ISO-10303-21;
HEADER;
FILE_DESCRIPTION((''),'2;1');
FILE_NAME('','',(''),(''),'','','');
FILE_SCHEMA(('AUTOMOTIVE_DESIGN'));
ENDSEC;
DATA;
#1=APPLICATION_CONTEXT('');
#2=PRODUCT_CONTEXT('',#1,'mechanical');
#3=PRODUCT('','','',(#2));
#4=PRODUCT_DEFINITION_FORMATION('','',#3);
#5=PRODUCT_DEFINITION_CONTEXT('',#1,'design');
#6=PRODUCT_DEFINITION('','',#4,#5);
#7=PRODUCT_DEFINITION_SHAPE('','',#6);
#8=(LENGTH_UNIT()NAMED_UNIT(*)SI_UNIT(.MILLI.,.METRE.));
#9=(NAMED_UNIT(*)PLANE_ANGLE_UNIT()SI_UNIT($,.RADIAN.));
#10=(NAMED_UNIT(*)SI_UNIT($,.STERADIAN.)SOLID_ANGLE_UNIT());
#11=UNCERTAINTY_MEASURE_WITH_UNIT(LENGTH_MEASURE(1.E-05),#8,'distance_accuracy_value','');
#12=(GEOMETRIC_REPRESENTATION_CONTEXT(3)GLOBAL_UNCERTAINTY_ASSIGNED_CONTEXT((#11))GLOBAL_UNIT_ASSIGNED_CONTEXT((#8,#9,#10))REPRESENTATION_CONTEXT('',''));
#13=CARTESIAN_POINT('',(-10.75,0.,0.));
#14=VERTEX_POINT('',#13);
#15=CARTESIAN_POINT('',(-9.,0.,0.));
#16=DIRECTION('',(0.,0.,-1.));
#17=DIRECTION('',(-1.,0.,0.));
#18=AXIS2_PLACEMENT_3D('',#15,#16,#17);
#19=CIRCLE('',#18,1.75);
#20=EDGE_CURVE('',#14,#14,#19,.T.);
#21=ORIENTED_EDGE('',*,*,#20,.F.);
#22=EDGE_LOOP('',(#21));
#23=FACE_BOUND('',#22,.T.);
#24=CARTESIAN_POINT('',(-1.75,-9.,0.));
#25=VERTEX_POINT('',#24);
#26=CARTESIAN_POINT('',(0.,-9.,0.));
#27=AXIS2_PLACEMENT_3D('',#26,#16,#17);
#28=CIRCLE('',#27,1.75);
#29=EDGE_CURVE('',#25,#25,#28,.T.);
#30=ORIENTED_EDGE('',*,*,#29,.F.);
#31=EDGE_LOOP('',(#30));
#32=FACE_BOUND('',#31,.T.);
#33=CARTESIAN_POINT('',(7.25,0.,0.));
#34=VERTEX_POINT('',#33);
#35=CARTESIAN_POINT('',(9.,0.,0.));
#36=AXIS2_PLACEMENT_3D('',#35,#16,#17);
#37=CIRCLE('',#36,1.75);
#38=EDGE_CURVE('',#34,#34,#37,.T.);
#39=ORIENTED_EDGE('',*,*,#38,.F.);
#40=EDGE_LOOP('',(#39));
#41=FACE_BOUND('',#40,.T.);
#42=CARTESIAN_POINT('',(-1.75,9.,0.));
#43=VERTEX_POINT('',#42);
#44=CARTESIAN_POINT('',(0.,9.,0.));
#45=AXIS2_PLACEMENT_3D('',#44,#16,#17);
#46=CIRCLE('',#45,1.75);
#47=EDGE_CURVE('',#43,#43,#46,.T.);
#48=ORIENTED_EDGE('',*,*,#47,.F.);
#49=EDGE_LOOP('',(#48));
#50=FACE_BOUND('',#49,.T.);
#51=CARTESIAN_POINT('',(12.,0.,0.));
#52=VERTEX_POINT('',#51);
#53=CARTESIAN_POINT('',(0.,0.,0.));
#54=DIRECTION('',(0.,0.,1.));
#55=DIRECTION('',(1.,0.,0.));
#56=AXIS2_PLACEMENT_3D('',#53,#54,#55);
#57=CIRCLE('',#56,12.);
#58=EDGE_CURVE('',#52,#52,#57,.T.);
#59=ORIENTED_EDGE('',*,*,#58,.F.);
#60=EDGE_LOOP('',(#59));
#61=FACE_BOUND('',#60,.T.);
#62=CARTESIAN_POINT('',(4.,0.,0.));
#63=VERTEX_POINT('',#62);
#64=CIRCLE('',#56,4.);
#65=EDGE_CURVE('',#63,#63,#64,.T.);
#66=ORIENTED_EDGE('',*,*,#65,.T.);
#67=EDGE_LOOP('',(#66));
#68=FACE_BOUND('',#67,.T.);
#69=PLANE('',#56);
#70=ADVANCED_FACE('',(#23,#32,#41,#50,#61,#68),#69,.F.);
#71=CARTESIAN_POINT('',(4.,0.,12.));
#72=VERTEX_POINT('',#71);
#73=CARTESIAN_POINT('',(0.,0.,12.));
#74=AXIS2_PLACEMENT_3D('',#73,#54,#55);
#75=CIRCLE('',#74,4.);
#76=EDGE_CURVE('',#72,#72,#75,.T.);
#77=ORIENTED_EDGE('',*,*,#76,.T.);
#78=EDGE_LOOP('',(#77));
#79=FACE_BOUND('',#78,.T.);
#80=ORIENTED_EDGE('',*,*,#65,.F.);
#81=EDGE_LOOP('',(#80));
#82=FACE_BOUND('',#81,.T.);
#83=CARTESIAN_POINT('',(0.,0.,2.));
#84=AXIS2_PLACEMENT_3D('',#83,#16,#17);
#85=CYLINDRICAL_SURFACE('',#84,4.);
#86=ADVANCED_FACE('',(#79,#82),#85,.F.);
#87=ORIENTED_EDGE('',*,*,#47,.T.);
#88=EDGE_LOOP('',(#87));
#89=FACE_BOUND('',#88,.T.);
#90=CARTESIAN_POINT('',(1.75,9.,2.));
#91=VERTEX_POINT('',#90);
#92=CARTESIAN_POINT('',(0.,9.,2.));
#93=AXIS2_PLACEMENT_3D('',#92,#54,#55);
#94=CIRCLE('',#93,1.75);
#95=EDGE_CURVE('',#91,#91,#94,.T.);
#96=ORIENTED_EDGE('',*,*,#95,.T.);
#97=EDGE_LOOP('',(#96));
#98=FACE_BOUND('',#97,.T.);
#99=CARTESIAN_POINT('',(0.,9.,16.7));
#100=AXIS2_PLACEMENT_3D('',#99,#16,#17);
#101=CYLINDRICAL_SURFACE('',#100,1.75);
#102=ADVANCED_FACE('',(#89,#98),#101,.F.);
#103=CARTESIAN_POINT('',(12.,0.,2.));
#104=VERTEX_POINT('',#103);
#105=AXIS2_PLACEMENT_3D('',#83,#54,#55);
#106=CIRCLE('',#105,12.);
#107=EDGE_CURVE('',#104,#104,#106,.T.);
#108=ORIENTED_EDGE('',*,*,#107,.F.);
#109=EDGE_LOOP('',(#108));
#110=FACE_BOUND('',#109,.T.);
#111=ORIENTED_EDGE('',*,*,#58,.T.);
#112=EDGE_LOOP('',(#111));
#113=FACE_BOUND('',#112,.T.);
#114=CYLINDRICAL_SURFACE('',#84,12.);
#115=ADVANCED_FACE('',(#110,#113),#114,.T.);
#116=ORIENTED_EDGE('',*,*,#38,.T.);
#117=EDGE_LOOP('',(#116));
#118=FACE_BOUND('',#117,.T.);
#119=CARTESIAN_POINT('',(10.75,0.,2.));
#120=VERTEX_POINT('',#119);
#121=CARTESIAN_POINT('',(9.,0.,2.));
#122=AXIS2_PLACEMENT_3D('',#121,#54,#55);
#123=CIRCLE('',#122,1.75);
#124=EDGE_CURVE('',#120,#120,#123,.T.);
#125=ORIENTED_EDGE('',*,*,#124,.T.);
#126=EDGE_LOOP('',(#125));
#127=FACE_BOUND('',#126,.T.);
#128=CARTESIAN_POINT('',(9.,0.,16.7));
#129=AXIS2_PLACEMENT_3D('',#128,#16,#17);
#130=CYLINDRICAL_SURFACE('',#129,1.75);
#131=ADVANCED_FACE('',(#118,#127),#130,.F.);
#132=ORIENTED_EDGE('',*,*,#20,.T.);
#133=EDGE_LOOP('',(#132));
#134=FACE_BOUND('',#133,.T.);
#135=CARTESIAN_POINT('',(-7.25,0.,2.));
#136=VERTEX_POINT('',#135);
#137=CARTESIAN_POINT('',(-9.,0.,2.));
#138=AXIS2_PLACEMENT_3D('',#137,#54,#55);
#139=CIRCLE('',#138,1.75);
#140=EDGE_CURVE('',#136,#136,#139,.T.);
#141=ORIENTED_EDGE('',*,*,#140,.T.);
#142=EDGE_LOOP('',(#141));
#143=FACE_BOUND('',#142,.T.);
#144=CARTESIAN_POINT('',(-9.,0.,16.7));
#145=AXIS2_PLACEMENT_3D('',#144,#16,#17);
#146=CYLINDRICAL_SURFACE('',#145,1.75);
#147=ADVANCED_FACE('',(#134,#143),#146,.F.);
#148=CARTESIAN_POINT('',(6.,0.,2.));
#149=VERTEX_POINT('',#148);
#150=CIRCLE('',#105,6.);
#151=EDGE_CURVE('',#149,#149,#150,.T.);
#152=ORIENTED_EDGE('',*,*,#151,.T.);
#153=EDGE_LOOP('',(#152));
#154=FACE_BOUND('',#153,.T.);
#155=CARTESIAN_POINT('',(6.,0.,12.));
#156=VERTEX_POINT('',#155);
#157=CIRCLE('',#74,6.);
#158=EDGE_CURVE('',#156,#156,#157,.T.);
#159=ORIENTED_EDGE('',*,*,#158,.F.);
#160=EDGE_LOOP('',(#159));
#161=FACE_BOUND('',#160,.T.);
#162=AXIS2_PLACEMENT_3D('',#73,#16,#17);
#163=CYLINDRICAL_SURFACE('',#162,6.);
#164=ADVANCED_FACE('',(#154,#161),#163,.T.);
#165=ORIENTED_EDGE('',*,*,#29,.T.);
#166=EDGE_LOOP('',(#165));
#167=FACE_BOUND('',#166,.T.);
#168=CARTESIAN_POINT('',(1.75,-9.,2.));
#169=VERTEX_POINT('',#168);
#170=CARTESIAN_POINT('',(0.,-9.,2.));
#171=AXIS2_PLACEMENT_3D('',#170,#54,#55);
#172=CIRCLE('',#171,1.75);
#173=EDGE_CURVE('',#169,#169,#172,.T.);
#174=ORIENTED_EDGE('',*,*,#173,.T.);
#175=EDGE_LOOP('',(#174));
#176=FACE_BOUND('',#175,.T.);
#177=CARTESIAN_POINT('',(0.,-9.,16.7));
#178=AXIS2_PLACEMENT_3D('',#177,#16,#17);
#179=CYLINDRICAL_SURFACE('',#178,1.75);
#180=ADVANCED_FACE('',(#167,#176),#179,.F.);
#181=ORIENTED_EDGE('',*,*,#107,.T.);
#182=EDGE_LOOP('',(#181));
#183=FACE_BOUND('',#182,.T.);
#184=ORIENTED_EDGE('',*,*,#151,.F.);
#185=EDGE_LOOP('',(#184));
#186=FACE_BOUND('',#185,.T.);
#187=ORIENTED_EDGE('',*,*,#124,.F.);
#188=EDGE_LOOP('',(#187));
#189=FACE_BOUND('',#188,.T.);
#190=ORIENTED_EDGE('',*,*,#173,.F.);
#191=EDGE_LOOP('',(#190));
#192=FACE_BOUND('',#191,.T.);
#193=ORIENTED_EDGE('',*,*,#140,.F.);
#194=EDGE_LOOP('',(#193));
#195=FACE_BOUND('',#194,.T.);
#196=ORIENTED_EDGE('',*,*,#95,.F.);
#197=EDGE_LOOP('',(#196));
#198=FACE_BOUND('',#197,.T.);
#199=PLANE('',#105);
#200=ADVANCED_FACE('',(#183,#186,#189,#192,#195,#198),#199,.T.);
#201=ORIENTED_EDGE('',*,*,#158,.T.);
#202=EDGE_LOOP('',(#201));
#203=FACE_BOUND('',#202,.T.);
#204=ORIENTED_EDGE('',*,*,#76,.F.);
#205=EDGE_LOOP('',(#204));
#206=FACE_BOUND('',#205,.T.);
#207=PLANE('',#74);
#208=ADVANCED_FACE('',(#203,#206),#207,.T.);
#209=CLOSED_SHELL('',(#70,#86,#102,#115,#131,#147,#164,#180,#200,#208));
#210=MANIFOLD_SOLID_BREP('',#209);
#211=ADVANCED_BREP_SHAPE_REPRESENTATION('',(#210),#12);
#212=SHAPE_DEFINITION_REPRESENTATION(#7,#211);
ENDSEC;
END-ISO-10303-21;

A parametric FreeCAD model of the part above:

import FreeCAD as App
import Part
import Sketcher
Q = App.Units.Quantity

doc = App.newDocument("Part")
body = doc.addObject("PartDesign::Body", "Body")

# Sketch on XY plane
sketch1 = body.newObject("Sketcher::SketchObject", "Sketch")
sketch1.AttachmentSupport = (doc.getObject("XY_Plane"), [""])
sketch1.MapMode = "FlatFace"
sketch1.addGeometry([
    Part.Circle(App.Vector(0, 0, 0), App.Vector(0, 0, 1), 12),
    Part.Circle(App.Vector(0, 0, 0), App.Vector(0, 0, 1), 4),
], False)
sketch1.addConstraint([
    Sketcher.Constraint("Coincident", 0, 3, -1, 1),
    Sketcher.Constraint("Coincident", 1, 3, -1, 1),
    Sketcher.Constraint("Diameter", 0, Q("24 mm")),
    Sketcher.Constraint("Diameter", 1, Q("8 mm")),
])
pad1 = body.newObject("PartDesign::Pad", "Pad")
pad1.Profile = sketch1
pad1.Length = 2

# Sketch on XY plane
sketch2 = body.newObject("Sketcher::SketchObject", "Sketch001")
sketch2.AttachmentSupport = (doc.getObject("XY_Plane"), [""])
sketch2.MapMode = "FlatFace"
sketch2.AttachmentOffset = App.Placement(App.Vector(0, 0, 2), App.Rotation())
sketch2.addGeometry([
    Part.Circle(App.Vector(0, 0, 0), App.Vector(0, 0, 1), 6),
    Part.Circle(App.Vector(0, 0, 0), App.Vector(0, 0, 1), 4),
], False)
sketch2.addConstraint([
    Sketcher.Constraint("Coincident", 0, 3, -1, 1),
    Sketcher.Constraint("Coincident", 1, 3, -1, 1),
    Sketcher.Constraint("Diameter", 0, Q("12 mm")),
    Sketcher.Constraint("Diameter", 1, Q("8 mm")),
])
pad2 = body.newObject("PartDesign::Pad", "Pad001")
pad2.Profile = sketch2
pad2.Length = 10

# Sketch on XY plane
sketch3 = body.newObject("Sketcher::SketchObject", "Sketch002")
sketch3.AttachmentSupport = (doc.getObject("XY_Plane"), [""])
sketch3.MapMode = "FlatFace"
sketch3.addGeometry([
    Part.Circle(App.Vector(-9, 0, 0), App.Vector(0, 0, 1), 1.8),
    Part.Circle(App.Vector(0, 9, 0), App.Vector(0, 0, 1), 1.8),
    Part.Circle(App.Vector(9, 0, 0), App.Vector(0, 0, 1), 1.8),
    Part.Circle(App.Vector(0, -9, 0), App.Vector(0, 0, 1), 1.8),
], False)
sketch3.addConstraint([
    Sketcher.Constraint("Equal", 0, 1),
    Sketcher.Constraint("Equal", 1, 2),
    Sketcher.Constraint("Equal", 2, 3),
    Sketcher.Constraint("Symmetric", 0, 3, 2, 3, -1, 1),
    Sketcher.Constraint("Symmetric", 1, 3, 3, 3, -1, 1),
    Sketcher.Constraint("PointOnObject", 0, 3, -1),
    Sketcher.Constraint("PointOnObject", 1, 3, -2),
    Sketcher.Constraint("Diameter", 0, Q("3.5 mm")),
    Sketcher.Constraint("DistanceX", 0, 3, -1, 1, Q("9 mm")),
    Sketcher.Constraint("DistanceY", -1, 1, 1, 3, Q("9 mm")),
])
pocket1 = body.newObject("PartDesign::Pocket", "Pocket")
pocket1.Profile = sketch3
pocket1.Length = 16.7
pocket1.Reversed = True

doc.recompute()
